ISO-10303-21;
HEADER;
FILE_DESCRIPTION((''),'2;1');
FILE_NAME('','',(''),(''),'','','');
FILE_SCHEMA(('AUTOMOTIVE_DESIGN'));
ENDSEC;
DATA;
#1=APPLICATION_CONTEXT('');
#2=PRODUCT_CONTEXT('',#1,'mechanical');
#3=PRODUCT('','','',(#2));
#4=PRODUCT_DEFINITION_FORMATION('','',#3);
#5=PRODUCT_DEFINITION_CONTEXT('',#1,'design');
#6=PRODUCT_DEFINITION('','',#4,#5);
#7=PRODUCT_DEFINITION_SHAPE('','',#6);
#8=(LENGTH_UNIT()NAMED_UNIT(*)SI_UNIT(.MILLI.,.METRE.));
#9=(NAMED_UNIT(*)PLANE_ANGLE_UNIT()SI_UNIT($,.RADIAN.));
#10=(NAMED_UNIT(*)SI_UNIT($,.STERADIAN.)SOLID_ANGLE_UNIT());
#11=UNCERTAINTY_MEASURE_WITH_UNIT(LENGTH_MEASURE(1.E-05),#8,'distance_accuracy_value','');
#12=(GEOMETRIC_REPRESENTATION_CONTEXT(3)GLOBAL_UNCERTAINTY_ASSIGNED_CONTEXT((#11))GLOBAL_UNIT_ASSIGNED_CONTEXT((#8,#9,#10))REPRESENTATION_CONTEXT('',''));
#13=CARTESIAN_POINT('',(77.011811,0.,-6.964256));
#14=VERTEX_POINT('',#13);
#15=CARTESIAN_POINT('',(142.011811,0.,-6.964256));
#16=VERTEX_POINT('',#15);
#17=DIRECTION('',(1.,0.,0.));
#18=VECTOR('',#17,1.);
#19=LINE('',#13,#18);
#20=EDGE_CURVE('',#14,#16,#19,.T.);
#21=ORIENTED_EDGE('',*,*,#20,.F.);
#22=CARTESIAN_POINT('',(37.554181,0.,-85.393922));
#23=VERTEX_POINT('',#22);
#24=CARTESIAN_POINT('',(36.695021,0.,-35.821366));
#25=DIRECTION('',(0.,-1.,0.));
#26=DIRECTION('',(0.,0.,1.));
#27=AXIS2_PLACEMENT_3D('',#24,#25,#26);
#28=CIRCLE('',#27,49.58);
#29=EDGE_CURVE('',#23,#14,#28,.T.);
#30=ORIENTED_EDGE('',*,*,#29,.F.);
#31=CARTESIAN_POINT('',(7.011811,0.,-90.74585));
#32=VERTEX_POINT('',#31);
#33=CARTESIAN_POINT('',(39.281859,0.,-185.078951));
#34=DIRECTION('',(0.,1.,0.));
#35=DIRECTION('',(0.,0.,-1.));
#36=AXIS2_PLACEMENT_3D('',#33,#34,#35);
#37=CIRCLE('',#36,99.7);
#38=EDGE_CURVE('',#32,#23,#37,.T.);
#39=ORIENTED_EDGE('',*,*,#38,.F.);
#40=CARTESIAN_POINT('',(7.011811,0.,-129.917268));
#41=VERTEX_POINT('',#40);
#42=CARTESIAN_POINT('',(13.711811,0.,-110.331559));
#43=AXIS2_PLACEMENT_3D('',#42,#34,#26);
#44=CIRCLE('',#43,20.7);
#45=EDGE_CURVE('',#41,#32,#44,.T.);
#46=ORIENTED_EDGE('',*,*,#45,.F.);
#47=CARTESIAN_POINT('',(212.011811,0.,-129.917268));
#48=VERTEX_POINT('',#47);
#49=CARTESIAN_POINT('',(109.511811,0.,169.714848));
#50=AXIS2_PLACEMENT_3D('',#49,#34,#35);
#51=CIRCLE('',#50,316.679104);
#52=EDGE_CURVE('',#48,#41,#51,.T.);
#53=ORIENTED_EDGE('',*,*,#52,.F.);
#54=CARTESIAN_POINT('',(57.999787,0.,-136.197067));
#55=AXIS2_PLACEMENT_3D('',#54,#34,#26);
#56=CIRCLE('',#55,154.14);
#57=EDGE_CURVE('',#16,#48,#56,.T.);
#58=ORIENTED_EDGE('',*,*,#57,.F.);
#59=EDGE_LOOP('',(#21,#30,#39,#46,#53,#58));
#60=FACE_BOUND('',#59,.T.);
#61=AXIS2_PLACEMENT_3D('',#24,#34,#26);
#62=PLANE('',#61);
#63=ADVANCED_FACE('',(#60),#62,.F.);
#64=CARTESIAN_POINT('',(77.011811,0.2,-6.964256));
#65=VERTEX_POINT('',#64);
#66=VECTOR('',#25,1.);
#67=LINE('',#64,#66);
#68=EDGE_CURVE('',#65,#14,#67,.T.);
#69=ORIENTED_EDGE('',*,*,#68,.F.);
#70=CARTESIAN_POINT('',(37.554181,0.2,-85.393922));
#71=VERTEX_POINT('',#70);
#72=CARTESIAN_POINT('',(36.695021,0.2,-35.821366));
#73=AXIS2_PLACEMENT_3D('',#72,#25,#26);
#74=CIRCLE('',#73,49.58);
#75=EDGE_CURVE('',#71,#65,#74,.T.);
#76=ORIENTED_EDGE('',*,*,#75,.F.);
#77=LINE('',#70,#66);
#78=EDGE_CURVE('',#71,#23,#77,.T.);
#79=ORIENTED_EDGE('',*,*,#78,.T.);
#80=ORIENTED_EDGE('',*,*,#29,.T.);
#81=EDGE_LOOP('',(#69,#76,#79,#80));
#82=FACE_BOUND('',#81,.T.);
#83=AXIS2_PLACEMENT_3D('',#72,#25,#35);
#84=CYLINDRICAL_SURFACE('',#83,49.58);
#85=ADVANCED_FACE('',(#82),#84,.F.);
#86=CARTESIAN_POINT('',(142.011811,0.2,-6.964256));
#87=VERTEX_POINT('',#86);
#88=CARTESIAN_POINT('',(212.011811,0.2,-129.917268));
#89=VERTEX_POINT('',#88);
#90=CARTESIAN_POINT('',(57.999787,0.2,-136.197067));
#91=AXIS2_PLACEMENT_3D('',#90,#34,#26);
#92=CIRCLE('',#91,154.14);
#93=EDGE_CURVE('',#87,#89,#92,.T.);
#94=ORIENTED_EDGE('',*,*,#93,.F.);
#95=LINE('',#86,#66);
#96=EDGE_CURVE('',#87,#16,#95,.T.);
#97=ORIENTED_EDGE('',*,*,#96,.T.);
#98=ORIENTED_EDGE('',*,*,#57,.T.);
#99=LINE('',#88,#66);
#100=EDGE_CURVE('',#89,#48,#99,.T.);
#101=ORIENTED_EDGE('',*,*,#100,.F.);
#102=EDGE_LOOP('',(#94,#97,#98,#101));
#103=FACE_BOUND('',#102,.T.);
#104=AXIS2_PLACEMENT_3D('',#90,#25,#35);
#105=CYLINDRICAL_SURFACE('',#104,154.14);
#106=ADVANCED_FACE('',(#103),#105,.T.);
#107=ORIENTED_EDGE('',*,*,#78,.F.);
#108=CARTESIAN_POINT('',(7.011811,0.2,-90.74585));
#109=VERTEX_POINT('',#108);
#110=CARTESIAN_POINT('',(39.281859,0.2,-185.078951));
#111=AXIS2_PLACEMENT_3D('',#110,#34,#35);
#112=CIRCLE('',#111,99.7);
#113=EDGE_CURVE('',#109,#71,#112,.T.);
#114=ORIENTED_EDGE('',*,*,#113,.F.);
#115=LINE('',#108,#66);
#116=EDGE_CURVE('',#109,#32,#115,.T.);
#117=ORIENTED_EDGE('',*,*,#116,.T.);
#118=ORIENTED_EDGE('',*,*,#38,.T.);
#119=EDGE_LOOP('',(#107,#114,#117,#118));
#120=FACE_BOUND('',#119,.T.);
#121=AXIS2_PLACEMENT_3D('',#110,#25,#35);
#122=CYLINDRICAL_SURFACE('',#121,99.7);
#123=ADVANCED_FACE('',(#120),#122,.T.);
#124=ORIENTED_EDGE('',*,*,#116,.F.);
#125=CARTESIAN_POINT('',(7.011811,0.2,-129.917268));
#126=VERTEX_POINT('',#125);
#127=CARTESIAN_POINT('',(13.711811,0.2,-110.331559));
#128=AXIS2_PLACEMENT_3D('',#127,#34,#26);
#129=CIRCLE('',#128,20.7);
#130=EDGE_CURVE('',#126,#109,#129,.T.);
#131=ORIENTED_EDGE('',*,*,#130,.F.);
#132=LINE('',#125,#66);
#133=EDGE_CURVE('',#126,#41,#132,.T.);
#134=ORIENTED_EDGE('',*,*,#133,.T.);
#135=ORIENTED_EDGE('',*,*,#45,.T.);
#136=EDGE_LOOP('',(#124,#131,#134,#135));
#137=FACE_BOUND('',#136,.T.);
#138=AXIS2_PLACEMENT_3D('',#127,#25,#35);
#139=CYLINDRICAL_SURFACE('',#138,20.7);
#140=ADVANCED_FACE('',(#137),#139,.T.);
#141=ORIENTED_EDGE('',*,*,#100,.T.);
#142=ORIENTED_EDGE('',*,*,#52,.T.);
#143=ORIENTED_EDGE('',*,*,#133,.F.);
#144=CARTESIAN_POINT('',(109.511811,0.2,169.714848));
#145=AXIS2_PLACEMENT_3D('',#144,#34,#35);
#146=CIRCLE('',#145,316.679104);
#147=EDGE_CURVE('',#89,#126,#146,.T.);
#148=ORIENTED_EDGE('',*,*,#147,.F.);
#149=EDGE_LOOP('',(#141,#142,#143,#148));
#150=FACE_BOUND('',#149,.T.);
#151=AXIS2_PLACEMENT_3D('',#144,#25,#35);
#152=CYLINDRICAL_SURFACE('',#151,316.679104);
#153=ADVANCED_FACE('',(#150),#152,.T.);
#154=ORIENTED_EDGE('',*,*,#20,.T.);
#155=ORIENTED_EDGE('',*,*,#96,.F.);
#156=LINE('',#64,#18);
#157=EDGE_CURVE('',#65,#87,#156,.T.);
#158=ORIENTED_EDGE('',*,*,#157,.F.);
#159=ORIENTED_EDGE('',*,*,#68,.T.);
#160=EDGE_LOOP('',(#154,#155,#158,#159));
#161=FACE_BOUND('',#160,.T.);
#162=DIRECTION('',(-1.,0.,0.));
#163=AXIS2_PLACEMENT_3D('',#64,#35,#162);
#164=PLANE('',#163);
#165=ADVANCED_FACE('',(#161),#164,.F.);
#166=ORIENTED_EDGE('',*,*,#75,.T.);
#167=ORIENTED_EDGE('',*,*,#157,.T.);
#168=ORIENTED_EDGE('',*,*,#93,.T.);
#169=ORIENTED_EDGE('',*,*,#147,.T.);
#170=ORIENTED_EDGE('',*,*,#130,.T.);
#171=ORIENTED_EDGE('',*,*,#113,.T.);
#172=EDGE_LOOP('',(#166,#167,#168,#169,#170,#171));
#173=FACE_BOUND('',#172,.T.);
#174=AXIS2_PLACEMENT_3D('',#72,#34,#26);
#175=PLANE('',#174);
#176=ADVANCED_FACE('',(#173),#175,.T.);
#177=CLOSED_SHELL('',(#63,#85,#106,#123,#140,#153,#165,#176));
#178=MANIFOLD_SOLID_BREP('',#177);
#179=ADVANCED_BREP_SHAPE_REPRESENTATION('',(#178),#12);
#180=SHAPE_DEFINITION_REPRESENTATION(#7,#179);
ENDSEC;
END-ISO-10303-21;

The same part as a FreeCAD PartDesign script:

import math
import FreeCAD as App
import Part
import Sketcher

V = App.Vector
Q = App.Units.Quantity

doc = App.newDocument("Part")
params = doc.addObject("Spreadsheet::Sheet", "Params")
for row, (alias, value) in enumerate([
    ("sketch1_radius", "20.7 mm"),
    ("sketch1_radius2", "99.7 mm"),
    ("sketch1_width", "65 mm"),
    ("sketch1_radius3", "154.14 mm"),
    ("sketch1_radius4", "49.58 mm"),
    ("pad1_length", "0.2 mm"),
], start=1):
    params.set(f"A{row}", alias)
    params.set(f"B{row}", "=" + value)
    params.setAlias(f"B{row}", alias)

body = doc.addObject("PartDesign::Body", "Body")

# Sketch on XZ plane
sketch1 = doc.addObject("Sketcher::SketchObject", "Sketch")
body.addObject(sketch1)
sketch1.AttachmentSupport = (doc.XZ_Plane, [""])
sketch1.MapMode = "FlatFace"
sketch1.addGeometry([
    Part.LineSegment(V(77, -7, 0), V(142, -7, 0)),  # 0
    Part.ArcOfCircle(Part.Circle(V(58, -136, 0), V(0, 0, 1), 154), math.radians(2), math.radians(57)),  # 1
    Part.ArcOfCircle(Part.Circle(V(110, 170, 0), V(0, 0, 1), 317), math.radians(-109), math.radians(-71)),  # 2
    Part.ArcOfCircle(Part.Circle(V(14, -110, 0), V(0, 0, 1), 21), math.radians(109), math.radians(251)),  # 3
    Part.ArcOfCircle(Part.Circle(V(39, -185, 0), V(0, 0, 1), 100), math.radians(90.99), math.radians(108.89)),  # 4
    Part.ArcOfCircle(Part.Circle(V(37, -36, 0), V(0, 0, 1), 50), math.radians(-89), math.radians(36)),  # 5
], False)
sketch1.addConstraint([
    Sketcher.Constraint("Coincident", 0, 2, 1, 2),
    Sketcher.Constraint("Coincident", 1, 1, 2, 2),
    Sketcher.Constraint("Tangent", 2, 1, 3, 2),
    Sketcher.Constraint("Tangent", 3, 1, 4, 2),
    Sketcher.Constraint("Tangent", 4, 1, 5, 1),
    Sketcher.Constraint("Coincident", 5, 2, 0, 1),
    Sketcher.Constraint("Horizontal", 0),
    Sketcher.Constraint("Horizontal", 1, 1, 2, 1),
    Sketcher.Constraint("Radius", 3, Q("20.7 mm")),
    Sketcher.Constraint("Radius", 4, Q("99.7 mm")),
    Sketcher.Constraint("DistanceX", 0, 1, 0, 2, Q("65 mm")),
    Sketcher.Constraint("Radius", 1, Q("154.14 mm")),
    Sketcher.Constraint("Radius", 5, Q("49.58 mm")),
    Sketcher.Constraint("DistanceX", 0, 2, 1, 1, Q("70 mm")),
    Sketcher.Constraint("DistanceX", 2, 1, 0, 2, Q("135 mm")),
    Sketcher.Constraint("DistanceX", 3, 1, 5, 2, Q("70 mm")),
    Sketcher.Constraint("DistanceX", 3, 3, 2, 3, Q("95.8 mm")),
    Sketcher.Constraint("DistanceY", 1, 3, 5, 3, Q("100.3757 mm")),
    Sketcher.Constraint("DistanceX", -1, 1, 2, 3, Q("109.511811 mm")),
    Sketcher.Constraint("DistanceY", -1, 1, 2, 3, Q("169.714848 mm")),
])
sketch1.setExpression("Constraints[8]", "Params.sketch1_radius")
sketch1.setExpression("Constraints[9]", "Params.sketch1_radius2")
sketch1.setExpression("Constraints[10]", "Params.sketch1_width")
sketch1.setExpression("Constraints[11]", "Params.sketch1_radius3")
sketch1.setExpression("Constraints[12]", "Params.sketch1_radius4")
pad1 = doc.addObject("PartDesign::Pad", "Pad")
body.addObject(pad1)
pad1.Profile = sketch1
pad1.setExpression("Length", "Params.pad1_length")
pad1.Reversed = True

doc.recompute()
